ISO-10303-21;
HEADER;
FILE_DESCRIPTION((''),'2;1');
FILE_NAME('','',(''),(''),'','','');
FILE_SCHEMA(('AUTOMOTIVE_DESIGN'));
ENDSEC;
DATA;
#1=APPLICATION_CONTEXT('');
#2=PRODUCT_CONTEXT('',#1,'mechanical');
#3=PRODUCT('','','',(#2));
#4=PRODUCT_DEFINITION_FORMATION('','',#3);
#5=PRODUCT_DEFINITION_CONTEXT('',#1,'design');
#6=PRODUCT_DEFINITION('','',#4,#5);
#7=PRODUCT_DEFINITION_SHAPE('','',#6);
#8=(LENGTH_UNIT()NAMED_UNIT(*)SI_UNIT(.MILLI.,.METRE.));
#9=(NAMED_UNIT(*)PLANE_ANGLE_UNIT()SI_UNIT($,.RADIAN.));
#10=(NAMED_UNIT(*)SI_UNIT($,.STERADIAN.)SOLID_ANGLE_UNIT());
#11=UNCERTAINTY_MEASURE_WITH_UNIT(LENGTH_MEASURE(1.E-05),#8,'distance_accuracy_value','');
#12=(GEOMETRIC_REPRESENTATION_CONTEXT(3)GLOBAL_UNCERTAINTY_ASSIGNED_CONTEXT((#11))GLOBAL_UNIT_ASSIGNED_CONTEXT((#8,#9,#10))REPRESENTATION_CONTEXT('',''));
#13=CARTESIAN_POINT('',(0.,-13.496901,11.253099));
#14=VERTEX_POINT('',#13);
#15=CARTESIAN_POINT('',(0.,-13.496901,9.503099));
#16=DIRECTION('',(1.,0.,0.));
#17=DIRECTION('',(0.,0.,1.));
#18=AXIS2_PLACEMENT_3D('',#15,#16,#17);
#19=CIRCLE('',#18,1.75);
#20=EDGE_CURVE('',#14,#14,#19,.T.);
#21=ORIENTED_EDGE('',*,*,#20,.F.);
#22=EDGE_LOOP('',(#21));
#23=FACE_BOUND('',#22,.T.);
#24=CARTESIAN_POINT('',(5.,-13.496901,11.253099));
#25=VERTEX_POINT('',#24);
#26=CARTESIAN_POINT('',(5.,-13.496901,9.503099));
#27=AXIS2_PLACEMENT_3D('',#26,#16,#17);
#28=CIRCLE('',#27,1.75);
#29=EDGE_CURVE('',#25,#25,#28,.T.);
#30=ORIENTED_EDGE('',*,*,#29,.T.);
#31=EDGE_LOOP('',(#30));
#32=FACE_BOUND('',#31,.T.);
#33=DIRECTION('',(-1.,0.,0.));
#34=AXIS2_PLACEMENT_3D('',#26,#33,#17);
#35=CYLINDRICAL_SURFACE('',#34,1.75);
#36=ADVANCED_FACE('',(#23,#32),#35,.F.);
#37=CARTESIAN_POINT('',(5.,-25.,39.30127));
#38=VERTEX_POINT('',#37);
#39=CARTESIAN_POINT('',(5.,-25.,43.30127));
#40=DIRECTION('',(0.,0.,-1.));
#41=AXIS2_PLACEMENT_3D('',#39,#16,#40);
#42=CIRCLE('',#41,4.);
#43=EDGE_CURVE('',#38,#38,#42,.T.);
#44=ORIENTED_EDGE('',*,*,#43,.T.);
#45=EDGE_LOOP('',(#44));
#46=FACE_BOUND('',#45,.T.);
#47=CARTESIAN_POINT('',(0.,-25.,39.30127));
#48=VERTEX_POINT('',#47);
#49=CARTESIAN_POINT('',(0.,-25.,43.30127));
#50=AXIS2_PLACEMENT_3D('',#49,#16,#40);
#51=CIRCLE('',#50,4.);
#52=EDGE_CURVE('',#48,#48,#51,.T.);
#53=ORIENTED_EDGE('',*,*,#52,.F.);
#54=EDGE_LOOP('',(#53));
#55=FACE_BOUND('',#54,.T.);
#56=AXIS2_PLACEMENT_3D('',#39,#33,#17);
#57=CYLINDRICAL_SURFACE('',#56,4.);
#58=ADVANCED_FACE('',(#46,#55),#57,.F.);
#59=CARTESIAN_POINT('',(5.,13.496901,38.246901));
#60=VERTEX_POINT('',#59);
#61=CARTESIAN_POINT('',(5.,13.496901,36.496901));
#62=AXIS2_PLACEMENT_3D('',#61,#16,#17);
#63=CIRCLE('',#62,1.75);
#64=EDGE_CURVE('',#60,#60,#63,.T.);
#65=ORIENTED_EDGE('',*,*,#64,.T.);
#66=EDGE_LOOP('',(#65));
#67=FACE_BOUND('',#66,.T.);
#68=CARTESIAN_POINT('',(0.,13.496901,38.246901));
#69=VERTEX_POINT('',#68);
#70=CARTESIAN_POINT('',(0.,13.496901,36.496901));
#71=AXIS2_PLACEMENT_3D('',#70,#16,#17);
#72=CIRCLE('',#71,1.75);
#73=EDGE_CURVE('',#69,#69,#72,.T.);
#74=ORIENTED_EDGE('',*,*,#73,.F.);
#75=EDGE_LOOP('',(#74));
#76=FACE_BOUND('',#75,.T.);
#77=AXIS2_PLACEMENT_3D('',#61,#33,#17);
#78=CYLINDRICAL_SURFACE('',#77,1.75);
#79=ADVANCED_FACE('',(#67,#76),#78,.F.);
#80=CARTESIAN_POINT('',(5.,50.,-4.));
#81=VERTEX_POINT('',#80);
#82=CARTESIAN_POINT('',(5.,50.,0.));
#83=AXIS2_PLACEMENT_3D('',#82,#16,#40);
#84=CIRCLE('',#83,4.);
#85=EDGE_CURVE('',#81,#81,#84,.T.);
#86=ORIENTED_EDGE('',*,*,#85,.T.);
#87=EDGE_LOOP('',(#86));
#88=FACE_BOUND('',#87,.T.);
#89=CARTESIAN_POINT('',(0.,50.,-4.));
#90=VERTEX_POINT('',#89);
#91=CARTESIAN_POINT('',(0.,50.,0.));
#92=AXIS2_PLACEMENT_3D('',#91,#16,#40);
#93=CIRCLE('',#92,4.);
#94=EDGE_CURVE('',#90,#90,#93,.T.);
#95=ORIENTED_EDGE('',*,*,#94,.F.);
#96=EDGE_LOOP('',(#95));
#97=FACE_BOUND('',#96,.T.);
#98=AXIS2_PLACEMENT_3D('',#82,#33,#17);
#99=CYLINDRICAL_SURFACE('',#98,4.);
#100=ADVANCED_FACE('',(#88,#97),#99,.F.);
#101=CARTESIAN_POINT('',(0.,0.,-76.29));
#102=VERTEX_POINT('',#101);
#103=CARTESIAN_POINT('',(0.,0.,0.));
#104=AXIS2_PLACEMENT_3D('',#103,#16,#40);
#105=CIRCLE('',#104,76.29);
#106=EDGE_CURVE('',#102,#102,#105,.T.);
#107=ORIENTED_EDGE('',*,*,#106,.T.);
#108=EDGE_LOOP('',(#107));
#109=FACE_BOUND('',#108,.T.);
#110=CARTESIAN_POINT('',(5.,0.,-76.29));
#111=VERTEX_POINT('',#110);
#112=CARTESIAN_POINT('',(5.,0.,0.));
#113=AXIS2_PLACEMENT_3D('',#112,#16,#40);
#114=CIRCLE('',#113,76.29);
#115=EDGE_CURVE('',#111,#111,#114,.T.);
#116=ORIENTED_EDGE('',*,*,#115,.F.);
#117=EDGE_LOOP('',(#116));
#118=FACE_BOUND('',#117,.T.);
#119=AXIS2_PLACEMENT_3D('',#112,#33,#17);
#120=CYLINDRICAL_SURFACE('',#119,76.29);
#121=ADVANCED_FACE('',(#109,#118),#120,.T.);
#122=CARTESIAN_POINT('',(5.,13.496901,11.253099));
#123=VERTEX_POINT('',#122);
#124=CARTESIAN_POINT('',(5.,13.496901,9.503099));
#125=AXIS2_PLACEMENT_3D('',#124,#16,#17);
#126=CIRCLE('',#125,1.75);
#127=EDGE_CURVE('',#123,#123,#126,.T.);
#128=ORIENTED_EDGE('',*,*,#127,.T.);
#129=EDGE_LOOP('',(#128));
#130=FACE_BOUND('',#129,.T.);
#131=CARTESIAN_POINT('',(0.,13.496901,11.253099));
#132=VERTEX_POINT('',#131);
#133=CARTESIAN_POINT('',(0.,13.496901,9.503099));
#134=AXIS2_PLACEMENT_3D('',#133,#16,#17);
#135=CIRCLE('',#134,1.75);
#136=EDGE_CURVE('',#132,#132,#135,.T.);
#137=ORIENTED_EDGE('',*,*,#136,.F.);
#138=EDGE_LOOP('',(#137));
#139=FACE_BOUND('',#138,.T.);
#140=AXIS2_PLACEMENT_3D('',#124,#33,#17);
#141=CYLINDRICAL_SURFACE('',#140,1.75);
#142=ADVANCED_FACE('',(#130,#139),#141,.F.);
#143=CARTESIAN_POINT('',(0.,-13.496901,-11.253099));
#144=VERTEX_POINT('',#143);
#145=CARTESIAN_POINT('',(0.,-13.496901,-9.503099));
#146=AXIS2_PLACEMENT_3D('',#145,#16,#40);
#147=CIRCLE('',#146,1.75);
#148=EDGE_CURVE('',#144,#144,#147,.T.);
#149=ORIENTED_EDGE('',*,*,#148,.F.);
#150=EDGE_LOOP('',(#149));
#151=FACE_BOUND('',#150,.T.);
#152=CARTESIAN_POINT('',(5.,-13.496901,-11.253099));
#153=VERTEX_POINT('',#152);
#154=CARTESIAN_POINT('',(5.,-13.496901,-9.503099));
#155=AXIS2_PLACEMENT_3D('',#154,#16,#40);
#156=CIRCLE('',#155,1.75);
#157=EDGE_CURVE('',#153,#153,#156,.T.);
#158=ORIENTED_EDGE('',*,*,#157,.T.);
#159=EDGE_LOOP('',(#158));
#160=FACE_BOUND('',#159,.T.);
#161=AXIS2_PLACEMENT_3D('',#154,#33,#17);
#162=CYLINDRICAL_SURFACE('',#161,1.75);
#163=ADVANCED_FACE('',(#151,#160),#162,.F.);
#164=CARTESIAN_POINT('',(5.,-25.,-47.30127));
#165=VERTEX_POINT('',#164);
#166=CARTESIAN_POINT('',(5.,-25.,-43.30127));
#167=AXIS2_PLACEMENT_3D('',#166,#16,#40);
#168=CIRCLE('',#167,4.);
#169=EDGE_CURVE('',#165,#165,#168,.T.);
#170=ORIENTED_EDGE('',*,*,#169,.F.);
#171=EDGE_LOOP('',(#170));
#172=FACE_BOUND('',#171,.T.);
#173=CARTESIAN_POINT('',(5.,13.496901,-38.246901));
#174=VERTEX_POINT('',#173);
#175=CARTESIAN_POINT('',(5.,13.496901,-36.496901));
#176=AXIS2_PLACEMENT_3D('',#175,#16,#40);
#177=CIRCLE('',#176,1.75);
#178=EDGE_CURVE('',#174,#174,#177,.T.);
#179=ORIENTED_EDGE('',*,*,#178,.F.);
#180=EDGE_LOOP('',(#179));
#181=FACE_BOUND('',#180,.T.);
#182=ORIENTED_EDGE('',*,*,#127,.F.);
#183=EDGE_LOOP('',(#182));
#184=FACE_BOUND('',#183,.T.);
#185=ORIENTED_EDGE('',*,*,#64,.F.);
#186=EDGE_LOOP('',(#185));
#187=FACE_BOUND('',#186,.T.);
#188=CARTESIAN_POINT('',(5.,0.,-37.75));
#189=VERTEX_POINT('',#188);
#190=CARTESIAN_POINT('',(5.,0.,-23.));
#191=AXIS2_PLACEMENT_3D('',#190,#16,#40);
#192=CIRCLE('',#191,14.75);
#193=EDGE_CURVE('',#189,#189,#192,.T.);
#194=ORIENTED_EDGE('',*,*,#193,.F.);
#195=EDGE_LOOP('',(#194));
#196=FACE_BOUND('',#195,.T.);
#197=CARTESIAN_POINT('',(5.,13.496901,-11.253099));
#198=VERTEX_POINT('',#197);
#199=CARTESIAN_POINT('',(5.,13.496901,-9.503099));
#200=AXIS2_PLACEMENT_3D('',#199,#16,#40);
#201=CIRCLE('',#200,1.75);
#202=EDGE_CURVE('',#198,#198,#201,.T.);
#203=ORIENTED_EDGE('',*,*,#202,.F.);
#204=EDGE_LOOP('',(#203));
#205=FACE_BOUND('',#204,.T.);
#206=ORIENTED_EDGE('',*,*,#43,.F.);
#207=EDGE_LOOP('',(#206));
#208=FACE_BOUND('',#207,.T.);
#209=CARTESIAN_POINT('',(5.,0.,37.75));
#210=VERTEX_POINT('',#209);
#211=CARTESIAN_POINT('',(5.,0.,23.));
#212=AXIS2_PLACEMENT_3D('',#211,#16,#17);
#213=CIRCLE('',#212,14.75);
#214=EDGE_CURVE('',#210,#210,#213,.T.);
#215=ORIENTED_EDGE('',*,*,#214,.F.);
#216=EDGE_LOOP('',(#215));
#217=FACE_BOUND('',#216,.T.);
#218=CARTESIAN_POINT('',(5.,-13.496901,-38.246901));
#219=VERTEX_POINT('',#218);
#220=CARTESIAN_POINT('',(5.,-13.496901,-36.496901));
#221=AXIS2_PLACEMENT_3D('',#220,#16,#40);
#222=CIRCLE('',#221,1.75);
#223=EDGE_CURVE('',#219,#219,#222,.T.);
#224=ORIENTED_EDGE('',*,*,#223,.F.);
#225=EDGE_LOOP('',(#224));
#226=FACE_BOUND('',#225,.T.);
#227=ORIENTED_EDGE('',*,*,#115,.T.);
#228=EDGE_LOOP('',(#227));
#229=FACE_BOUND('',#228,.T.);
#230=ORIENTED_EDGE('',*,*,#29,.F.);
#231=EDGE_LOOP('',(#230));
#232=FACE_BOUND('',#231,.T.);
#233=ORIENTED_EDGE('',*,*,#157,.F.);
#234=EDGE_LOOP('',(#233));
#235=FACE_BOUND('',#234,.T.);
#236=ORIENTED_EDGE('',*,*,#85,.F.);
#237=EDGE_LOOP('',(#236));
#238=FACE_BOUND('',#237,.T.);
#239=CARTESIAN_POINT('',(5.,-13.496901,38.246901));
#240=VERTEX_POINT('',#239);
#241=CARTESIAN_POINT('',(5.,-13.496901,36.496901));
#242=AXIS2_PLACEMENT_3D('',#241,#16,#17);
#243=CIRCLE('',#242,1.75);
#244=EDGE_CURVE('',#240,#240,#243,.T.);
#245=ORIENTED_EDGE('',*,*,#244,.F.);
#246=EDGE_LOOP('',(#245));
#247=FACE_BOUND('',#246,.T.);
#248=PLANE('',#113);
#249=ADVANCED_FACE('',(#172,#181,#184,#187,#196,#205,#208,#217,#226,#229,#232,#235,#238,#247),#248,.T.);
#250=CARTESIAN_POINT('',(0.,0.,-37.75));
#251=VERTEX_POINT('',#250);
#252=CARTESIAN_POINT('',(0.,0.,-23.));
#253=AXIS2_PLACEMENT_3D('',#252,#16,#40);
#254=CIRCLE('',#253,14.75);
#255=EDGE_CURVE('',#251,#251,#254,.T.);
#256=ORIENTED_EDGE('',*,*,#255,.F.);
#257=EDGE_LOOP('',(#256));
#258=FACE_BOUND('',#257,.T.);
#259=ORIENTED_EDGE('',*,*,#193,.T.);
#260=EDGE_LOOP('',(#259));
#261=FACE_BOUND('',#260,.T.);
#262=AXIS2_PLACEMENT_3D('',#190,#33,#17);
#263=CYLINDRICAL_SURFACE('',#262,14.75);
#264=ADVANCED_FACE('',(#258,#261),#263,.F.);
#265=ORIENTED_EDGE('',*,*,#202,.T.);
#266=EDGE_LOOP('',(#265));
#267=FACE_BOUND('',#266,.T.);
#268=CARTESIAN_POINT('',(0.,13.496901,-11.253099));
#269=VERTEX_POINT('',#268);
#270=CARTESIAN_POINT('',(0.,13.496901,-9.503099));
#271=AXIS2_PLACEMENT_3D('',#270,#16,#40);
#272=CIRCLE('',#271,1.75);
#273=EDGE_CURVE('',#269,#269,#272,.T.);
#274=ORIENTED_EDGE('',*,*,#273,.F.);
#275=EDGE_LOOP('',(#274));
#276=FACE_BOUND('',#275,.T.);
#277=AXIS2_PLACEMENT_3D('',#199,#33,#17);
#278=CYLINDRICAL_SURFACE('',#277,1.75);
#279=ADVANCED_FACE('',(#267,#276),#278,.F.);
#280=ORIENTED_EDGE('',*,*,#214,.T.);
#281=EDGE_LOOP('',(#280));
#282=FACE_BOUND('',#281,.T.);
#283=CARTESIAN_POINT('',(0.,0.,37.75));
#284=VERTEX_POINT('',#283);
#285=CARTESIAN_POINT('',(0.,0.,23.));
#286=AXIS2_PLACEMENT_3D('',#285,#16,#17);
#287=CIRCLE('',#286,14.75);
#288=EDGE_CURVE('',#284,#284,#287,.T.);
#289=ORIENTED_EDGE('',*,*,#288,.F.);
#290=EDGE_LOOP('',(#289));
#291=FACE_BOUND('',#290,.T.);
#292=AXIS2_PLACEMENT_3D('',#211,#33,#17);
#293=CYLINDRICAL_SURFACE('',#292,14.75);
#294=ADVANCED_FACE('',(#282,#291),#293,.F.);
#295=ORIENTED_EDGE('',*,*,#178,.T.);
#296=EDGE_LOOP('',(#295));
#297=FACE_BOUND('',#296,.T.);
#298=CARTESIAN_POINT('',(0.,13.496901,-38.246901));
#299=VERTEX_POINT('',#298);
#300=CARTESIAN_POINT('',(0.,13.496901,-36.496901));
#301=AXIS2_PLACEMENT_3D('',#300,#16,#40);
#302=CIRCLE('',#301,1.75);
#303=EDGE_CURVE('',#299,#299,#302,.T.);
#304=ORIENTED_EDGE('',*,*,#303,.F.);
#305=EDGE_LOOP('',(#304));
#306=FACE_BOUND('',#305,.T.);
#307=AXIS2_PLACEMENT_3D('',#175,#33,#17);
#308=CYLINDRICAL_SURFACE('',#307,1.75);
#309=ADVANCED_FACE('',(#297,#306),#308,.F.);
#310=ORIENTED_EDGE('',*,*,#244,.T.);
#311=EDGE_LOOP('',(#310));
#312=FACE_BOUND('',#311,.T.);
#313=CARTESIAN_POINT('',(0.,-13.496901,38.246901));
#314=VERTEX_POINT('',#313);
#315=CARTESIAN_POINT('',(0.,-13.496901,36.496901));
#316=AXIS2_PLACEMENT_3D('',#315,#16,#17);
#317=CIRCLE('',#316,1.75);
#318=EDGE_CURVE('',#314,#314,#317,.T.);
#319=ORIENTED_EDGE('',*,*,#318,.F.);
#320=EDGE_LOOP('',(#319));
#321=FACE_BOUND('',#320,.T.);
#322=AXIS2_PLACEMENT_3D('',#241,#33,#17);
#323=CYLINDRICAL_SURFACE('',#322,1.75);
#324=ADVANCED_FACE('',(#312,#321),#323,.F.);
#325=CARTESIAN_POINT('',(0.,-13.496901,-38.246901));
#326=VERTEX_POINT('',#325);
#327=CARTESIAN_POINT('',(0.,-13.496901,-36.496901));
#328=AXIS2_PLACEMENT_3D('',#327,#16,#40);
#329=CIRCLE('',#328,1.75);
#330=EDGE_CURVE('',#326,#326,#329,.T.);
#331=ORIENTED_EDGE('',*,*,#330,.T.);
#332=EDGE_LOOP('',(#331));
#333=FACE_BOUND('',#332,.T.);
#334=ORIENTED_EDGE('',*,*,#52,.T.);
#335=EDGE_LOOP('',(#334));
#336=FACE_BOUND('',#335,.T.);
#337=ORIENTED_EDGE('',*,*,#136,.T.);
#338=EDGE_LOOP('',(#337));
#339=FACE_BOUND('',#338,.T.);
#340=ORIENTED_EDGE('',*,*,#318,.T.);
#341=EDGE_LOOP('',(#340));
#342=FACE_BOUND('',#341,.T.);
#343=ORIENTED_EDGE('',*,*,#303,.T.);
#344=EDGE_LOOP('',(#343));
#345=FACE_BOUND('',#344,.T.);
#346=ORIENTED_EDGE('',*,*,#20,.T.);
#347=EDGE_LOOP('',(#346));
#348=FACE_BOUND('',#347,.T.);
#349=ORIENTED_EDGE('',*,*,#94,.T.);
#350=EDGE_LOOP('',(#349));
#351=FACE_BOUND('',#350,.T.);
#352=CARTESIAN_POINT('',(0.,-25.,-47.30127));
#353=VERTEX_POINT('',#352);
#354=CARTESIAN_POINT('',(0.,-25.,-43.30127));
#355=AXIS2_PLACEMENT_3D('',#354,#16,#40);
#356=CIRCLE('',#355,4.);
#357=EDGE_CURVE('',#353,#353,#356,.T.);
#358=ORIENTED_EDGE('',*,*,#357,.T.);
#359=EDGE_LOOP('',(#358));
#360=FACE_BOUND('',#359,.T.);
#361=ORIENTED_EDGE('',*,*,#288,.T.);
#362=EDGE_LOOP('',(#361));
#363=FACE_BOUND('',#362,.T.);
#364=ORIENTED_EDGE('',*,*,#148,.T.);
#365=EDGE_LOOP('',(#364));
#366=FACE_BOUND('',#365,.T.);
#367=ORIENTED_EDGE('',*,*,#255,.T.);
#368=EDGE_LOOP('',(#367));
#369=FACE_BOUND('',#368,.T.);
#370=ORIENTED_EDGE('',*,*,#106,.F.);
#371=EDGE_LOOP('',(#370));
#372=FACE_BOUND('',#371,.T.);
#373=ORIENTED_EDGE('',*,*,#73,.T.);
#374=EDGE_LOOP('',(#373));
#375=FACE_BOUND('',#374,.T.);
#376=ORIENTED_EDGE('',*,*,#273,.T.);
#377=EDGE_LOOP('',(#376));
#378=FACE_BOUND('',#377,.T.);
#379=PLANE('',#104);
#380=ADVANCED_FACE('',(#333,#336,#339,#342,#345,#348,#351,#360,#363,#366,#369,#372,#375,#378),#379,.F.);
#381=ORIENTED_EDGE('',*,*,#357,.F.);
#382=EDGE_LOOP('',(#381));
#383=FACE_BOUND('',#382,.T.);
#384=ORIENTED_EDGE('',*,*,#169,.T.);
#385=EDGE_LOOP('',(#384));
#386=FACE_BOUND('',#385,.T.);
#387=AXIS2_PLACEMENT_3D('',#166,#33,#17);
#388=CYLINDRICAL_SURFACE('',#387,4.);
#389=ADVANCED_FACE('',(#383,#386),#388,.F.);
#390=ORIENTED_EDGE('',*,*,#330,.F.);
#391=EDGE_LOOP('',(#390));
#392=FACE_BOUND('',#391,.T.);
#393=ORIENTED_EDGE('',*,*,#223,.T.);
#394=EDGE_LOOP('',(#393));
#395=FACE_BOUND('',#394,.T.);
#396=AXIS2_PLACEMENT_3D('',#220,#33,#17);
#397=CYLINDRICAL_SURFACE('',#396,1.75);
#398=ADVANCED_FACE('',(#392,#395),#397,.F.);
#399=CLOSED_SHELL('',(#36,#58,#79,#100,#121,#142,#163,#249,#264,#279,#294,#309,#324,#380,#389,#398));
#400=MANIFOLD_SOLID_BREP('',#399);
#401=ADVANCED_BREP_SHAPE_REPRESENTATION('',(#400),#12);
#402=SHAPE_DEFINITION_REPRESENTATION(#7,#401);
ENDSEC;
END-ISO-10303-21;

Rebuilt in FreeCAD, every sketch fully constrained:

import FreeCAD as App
import Part
import Sketcher

doc = App.newDocument("Part")
body = doc.addObject("PartDesign::Body", "Body")

sketch1 = body.newObject("Sketcher::SketchObject", "Sketch")
sketch1.AttachmentSupport = (doc.getObject("YZ_Plane"), [""])
sketch1.MapMode = "FlatFace"
sketch1.addGeometry(Part.Circle(App.Vector(0, 0, 0), App.Vector(0, 0, 1), 76.3), False)
sketch1.addGeometry(Part.Circle(App.Vector(-25, 43.3, 0), App.Vector(0, 0, 1), 4), False)
sketch1.addGeometry(Part.Circle(App.Vector(-13.5, 36.5, 0), App.Vector(0, 0, 1), 1.8), False)
sketch1.addGeometry(Part.Circle(App.Vector(-13.5, 9.5, 0), App.Vector(0, 0, 1), 1.8), False)
sketch1.addGeometry(Part.Circle(App.Vector(0, 23, 0), App.Vector(0, 0, 1), 14.8), False)
sketch1.addGeometry(Part.Circle(App.Vector(-13.5, -9.5, 0), App.Vector(0, 0, 1), 1.8), False)
sketch1.addGeometry(Part.Circle(App.Vector(-25, -43.3, 0), App.Vector(0, 0, 1), 4), False)
sketch1.addGeometry(Part.Circle(App.Vector(-13.5, -36.5, 0), App.Vector(0, 0, 1), 1.8), False)
sketch1.addGeometry(Part.Circle(App.Vector(0, -23, 0), App.Vector(0, 0, 1), 14.8), False)
sketch1.addGeometry(Part.Circle(App.Vector(13.5, 36.5, 0), App.Vector(0, 0, 1), 1.8), False)
sketch1.addGeometry(Part.Circle(App.Vector(13.5, 9.5, 0), App.Vector(0, 0, 1), 1.8), False)
sketch1.addGeometry(Part.Circle(App.Vector(13.5, -9.5, 0), App.Vector(0, 0, 1), 1.8), False)
sketch1.addGeometry(Part.Circle(App.Vector(13.5, -36.5, 0), App.Vector(0, 0, 1), 1.8), False)
sketch1.addGeometry(Part.Circle(App.Vector(50, 0, 0), App.Vector(0, 0, 1), 4), False)
sketch1.addConstraint(Sketcher.Constraint("Coincident", 0, 3, -1, 1))
sketch1.addConstraint(Sketcher.Constraint("Equal", 2, 3))
sketch1.addConstraint(Sketcher.Constraint("Equal", 3, 5))
sketch1.addConstraint(Sketcher.Constraint("Equal", 1, 6))
sketch1.addConstraint(Sketcher.Constraint("Equal", 5, 7))
sketch1.addConstraint(Sketcher.Constraint("Equal", 4, 8))
sketch1.addConstraint(Sketcher.Constraint("Equal", 7, 9))
sketch1.addConstraint(Sketcher.Constraint("Equal", 9, 10))
sketch1.addConstraint(Sketcher.Constraint("Equal", 10, 11))
sketch1.addConstraint(Sketcher.Constraint("Equal", 11, 12))
sketch1.addConstraint(Sketcher.Constraint("Equal", 6, 13))
sketch1.addConstraint(Sketcher.Constraint("Symmetric", 4, 3, 8, 3, -1, 1))
sketch1.addConstraint(Sketcher.Constraint("Symmetric", 7, 3, 9, 3, -1, 1))
sketch1.addConstraint(Sketcher.Constraint("Symmetric", 5, 3, 10, 3, -1, 1))
sketch1.addConstraint(Sketcher.Constraint("Symmetric", 3, 3, 11, 3, -1, 1))
sketch1.addConstraint(Sketcher.Constraint("Symmetric", 2, 3, 12, 3, -1, 1))
sketch1.addConstraint(Sketcher.Constraint("Symmetric", 2, 3, 9, 3, -2))
sketch1.addConstraint(Sketcher.Constraint("Symmetric", 3, 3, 10, 3, -2))
sketch1.addConstraint(Sketcher.Constraint("Symmetric", 1, 3, 6, 3, -1))
sketch1.addConstraint(Sketcher.Constraint("PointOnObject", 4, 3, -2))
sketch1.addConstraint(Sketcher.Constraint("PointOnObject", 13, 3, -1))
sketch1.addConstraint(Sketcher.Constraint("Vertical", 2, 3, 3, 3))
sketch1.addConstraint(Sketcher.Constraint("Diameter", 1, 8.0))
sketch1.addConstraint(Sketcher.Constraint("Diameter", 2, 3.5))
sketch1.addConstraint(Sketcher.Constraint("Diameter", 4, 29.5))
sketch1.addConstraint(Sketcher.Constraint("Diameter", 0, 152.58))
sketch1.addConstraint(Sketcher.Constraint("DistanceX", 1, 3, -1, 1, 25.0))
sketch1.addConstraint(Sketcher.Constraint("DistanceY", -1, 1, 4, 3, 23.0))
sketch1.addConstraint(Sketcher.Constraint("DistanceX", -1, 1, 13, 3, 50.0))
sketch1.addConstraint(Sketcher.Constraint("DistanceY", 5, 3, 2, 3, 46.0))
sketch1.addConstraint(Sketcher.Constraint("DistanceX", 2, 3, -1, 1, 13.496901))
sketch1.addConstraint(Sketcher.Constraint("DistanceY", -1, 1, 2, 3, 36.496901))
sketch1.addConstraint(Sketcher.Constraint("DistanceY", -1, 1, 1, 3, 43.30127))
pad1 = body.newObject("PartDesign::Pad", "Pad")
pad1.Profile = sketch1
pad1.Length = 5

doc.recompute()
